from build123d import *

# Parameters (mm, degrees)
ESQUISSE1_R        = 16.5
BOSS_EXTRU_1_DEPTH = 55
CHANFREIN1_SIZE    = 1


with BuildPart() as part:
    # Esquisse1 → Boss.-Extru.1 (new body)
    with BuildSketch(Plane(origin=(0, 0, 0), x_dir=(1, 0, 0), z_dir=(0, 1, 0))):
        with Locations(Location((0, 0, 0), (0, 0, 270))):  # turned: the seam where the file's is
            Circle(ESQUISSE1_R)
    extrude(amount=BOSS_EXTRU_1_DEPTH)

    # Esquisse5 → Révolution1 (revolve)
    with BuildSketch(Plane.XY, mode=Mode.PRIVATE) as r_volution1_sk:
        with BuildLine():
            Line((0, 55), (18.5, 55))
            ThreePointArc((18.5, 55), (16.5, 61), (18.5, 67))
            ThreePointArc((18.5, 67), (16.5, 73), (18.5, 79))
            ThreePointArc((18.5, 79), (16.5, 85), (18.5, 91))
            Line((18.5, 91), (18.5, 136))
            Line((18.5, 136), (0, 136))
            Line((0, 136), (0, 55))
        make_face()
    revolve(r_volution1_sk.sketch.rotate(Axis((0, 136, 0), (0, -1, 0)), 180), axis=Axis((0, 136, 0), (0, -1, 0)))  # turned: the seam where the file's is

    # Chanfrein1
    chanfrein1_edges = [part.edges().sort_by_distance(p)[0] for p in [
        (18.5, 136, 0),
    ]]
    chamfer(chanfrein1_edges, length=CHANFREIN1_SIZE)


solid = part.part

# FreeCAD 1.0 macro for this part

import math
import FreeCAD as App
import Part
import Sketcher
from FreeCAD import Vector
Q = App.Units.Quantity


def edges_at(feature, points):
    """Names of the edges that pass closest to the given points."""
    edges = feature.Shape.Edges
    near = lambda p: min(range(len(edges)), key=lambda i: edges[i].distToShape(Part.Vertex(*p))[0])
    return sorted({f"Edge{near(p) + 1}" for p in points})

doc = App.newDocument("Part")
body = doc.addObject("PartDesign::Body", "Body")

# Sketch on XZ plane
sketch1 = doc.addObject("Sketcher::SketchObject", "Sketch")
body.addObject(sketch1)
sketch1.AttachmentSupport = (doc.XZ_Plane, [""])
sketch1.MapMode = "FlatFace"
sketch1.addGeometry(Part.Circle(Vector(0, 0, 0), Vector(0, 0, 1), 16), False)
sketch1.addConstraint(Sketcher.Constraint("Coincident", 0, 3, -1, 1))
sketch1.addConstraint(Sketcher.Constraint("Diameter", 0, Q("33 mm")))
pad1 = doc.addObject("PartDesign::Pad", "Pad")
body.addObject(pad1)
pad1.Profile = sketch1
pad1.Length = 55
pad1.Reversed = True

# Sketch on XY plane
sketch2 = doc.addObject("Sketcher::SketchObject", "Sketch001")
body.addObject(sketch2)
sketch2.AttachmentSupport = (doc.XY_Plane, [""])
sketch2.MapMode = "FlatFace"
sketch2.addGeometry(Part.LineSegment(Vector(0, 55, 0), Vector(18, 55, 0)), False)
sketch2.addGeometry(Part.ArcOfCircle(Part.Circle(Vector(26, 61, 0), Vector(0, 0, 1), 10), math.radians(143), math.radians(217)), False)
sketch2.addGeometry(Part.ArcOfCircle(Part.Circle(Vector(26, 73, 0), Vector(0, 0, 1), 10), math.radians(143), math.radians(217)), False)
sketch2.addGeometry(Part.ArcOfCircle(Part.Circle(Vector(26, 85, 0), Vector(0, 0, 1), 10), math.radians(143), math.radians(217)), False)
sketch2.addGeometry(Part.LineSegment(Vector(18, 91, 0), Vector(18, 136, 0)), False)
sketch2.addGeometry(Part.LineSegment(Vector(18, 136, 0), Vector(0, 136, 0)), False)
sketch2.addGeometry(Part.LineSegment(Vector(0, 136, 0), Vector(0, 55, 0)), False)
sketch2.addConstraint(Sketcher.Constraint("Coincident", 0, 2, 1, 2))
sketch2.addConstraint(Sketcher.Constraint("Coincident", 1, 1, 2, 2))
sketch2.addConstraint(Sketcher.Constraint("Coincident", 2, 1, 3, 2))
sketch2.addConstraint(Sketcher.Constraint("Coincident", 3, 1, 4, 1))
sketch2.addConstraint(Sketcher.Constraint("Coincident", 4, 2, 5, 1))
sketch2.addConstraint(Sketcher.Constraint("Coincident", 5, 2, 6, 1))
sketch2.addConstraint(Sketcher.Constraint("Coincident", 6, 2, 0, 1))
sketch2.addConstraint(Sketcher.Constraint("Horizontal", 0))
sketch2.addConstraint(Sketcher.Constraint("Vertical", 4))
sketch2.addConstraint(Sketcher.Constraint("Horizontal", 5))
sketch2.addConstraint(Sketcher.Constraint("Vertical", 6))
sketch2.addConstraint(Sketcher.Constraint("Equal", 1, 2))
sketch2.addConstraint(Sketcher.Constraint("Equal", 2, 3))
sketch2.addConstraint(Sketcher.Constraint("PointOnObject", 5, 2, -2))
sketch2.addConstraint(Sketcher.Constraint("Vertical", 1, 3, 2, 3))
sketch2.addConstraint(Sketcher.Constraint("Vertical", 2, 3, 3, 3))
sketch2.addConstraint(Sketcher.Constraint("Vertical", 0, 2, 1, 1))
sketch2.addConstraint(Sketcher.Constraint("Vertical", 1, 1, 2, 1))
sketch2.addConstraint(Sketcher.Constraint("Vertical", 2, 1, 3, 1))
sketch2.addConstraint(Sketcher.Constraint("Radius", 1, Q("10 mm")))
sketch2.addConstraint(Sketcher.Constraint("DistanceY", 4, 1, 4, 2, Q("45 mm")))
sketch2.addConstraint(Sketcher.Constraint("DistanceY", 6, 2, 6, 1, Q("81 mm")))
sketch2.addConstraint(Sketcher.Constraint("DistanceX", 0, 1, 0, 2, Q("18.5 mm")))
sketch2.addConstraint(Sketcher.Constraint("DistanceY", -1, 1, 1, 3, Q("61 mm")))
revolution = doc.addObject("PartDesign::Revolution", "Revolution")
body.addObject(revolution)
revolution.Profile = sketch2
revolution.ReferenceAxis = (sketch2, ["V_Axis"])
revolution.Angle = 360
doc.recompute()

chamfer = doc.addObject("PartDesign::Chamfer", "Chamfer")
body.addObject(chamfer)
chamfer.Base = (revolution, edges_at(revolution, [(18.5, 136, 0)]))
chamfer.Size = 1

doc.recompute()
